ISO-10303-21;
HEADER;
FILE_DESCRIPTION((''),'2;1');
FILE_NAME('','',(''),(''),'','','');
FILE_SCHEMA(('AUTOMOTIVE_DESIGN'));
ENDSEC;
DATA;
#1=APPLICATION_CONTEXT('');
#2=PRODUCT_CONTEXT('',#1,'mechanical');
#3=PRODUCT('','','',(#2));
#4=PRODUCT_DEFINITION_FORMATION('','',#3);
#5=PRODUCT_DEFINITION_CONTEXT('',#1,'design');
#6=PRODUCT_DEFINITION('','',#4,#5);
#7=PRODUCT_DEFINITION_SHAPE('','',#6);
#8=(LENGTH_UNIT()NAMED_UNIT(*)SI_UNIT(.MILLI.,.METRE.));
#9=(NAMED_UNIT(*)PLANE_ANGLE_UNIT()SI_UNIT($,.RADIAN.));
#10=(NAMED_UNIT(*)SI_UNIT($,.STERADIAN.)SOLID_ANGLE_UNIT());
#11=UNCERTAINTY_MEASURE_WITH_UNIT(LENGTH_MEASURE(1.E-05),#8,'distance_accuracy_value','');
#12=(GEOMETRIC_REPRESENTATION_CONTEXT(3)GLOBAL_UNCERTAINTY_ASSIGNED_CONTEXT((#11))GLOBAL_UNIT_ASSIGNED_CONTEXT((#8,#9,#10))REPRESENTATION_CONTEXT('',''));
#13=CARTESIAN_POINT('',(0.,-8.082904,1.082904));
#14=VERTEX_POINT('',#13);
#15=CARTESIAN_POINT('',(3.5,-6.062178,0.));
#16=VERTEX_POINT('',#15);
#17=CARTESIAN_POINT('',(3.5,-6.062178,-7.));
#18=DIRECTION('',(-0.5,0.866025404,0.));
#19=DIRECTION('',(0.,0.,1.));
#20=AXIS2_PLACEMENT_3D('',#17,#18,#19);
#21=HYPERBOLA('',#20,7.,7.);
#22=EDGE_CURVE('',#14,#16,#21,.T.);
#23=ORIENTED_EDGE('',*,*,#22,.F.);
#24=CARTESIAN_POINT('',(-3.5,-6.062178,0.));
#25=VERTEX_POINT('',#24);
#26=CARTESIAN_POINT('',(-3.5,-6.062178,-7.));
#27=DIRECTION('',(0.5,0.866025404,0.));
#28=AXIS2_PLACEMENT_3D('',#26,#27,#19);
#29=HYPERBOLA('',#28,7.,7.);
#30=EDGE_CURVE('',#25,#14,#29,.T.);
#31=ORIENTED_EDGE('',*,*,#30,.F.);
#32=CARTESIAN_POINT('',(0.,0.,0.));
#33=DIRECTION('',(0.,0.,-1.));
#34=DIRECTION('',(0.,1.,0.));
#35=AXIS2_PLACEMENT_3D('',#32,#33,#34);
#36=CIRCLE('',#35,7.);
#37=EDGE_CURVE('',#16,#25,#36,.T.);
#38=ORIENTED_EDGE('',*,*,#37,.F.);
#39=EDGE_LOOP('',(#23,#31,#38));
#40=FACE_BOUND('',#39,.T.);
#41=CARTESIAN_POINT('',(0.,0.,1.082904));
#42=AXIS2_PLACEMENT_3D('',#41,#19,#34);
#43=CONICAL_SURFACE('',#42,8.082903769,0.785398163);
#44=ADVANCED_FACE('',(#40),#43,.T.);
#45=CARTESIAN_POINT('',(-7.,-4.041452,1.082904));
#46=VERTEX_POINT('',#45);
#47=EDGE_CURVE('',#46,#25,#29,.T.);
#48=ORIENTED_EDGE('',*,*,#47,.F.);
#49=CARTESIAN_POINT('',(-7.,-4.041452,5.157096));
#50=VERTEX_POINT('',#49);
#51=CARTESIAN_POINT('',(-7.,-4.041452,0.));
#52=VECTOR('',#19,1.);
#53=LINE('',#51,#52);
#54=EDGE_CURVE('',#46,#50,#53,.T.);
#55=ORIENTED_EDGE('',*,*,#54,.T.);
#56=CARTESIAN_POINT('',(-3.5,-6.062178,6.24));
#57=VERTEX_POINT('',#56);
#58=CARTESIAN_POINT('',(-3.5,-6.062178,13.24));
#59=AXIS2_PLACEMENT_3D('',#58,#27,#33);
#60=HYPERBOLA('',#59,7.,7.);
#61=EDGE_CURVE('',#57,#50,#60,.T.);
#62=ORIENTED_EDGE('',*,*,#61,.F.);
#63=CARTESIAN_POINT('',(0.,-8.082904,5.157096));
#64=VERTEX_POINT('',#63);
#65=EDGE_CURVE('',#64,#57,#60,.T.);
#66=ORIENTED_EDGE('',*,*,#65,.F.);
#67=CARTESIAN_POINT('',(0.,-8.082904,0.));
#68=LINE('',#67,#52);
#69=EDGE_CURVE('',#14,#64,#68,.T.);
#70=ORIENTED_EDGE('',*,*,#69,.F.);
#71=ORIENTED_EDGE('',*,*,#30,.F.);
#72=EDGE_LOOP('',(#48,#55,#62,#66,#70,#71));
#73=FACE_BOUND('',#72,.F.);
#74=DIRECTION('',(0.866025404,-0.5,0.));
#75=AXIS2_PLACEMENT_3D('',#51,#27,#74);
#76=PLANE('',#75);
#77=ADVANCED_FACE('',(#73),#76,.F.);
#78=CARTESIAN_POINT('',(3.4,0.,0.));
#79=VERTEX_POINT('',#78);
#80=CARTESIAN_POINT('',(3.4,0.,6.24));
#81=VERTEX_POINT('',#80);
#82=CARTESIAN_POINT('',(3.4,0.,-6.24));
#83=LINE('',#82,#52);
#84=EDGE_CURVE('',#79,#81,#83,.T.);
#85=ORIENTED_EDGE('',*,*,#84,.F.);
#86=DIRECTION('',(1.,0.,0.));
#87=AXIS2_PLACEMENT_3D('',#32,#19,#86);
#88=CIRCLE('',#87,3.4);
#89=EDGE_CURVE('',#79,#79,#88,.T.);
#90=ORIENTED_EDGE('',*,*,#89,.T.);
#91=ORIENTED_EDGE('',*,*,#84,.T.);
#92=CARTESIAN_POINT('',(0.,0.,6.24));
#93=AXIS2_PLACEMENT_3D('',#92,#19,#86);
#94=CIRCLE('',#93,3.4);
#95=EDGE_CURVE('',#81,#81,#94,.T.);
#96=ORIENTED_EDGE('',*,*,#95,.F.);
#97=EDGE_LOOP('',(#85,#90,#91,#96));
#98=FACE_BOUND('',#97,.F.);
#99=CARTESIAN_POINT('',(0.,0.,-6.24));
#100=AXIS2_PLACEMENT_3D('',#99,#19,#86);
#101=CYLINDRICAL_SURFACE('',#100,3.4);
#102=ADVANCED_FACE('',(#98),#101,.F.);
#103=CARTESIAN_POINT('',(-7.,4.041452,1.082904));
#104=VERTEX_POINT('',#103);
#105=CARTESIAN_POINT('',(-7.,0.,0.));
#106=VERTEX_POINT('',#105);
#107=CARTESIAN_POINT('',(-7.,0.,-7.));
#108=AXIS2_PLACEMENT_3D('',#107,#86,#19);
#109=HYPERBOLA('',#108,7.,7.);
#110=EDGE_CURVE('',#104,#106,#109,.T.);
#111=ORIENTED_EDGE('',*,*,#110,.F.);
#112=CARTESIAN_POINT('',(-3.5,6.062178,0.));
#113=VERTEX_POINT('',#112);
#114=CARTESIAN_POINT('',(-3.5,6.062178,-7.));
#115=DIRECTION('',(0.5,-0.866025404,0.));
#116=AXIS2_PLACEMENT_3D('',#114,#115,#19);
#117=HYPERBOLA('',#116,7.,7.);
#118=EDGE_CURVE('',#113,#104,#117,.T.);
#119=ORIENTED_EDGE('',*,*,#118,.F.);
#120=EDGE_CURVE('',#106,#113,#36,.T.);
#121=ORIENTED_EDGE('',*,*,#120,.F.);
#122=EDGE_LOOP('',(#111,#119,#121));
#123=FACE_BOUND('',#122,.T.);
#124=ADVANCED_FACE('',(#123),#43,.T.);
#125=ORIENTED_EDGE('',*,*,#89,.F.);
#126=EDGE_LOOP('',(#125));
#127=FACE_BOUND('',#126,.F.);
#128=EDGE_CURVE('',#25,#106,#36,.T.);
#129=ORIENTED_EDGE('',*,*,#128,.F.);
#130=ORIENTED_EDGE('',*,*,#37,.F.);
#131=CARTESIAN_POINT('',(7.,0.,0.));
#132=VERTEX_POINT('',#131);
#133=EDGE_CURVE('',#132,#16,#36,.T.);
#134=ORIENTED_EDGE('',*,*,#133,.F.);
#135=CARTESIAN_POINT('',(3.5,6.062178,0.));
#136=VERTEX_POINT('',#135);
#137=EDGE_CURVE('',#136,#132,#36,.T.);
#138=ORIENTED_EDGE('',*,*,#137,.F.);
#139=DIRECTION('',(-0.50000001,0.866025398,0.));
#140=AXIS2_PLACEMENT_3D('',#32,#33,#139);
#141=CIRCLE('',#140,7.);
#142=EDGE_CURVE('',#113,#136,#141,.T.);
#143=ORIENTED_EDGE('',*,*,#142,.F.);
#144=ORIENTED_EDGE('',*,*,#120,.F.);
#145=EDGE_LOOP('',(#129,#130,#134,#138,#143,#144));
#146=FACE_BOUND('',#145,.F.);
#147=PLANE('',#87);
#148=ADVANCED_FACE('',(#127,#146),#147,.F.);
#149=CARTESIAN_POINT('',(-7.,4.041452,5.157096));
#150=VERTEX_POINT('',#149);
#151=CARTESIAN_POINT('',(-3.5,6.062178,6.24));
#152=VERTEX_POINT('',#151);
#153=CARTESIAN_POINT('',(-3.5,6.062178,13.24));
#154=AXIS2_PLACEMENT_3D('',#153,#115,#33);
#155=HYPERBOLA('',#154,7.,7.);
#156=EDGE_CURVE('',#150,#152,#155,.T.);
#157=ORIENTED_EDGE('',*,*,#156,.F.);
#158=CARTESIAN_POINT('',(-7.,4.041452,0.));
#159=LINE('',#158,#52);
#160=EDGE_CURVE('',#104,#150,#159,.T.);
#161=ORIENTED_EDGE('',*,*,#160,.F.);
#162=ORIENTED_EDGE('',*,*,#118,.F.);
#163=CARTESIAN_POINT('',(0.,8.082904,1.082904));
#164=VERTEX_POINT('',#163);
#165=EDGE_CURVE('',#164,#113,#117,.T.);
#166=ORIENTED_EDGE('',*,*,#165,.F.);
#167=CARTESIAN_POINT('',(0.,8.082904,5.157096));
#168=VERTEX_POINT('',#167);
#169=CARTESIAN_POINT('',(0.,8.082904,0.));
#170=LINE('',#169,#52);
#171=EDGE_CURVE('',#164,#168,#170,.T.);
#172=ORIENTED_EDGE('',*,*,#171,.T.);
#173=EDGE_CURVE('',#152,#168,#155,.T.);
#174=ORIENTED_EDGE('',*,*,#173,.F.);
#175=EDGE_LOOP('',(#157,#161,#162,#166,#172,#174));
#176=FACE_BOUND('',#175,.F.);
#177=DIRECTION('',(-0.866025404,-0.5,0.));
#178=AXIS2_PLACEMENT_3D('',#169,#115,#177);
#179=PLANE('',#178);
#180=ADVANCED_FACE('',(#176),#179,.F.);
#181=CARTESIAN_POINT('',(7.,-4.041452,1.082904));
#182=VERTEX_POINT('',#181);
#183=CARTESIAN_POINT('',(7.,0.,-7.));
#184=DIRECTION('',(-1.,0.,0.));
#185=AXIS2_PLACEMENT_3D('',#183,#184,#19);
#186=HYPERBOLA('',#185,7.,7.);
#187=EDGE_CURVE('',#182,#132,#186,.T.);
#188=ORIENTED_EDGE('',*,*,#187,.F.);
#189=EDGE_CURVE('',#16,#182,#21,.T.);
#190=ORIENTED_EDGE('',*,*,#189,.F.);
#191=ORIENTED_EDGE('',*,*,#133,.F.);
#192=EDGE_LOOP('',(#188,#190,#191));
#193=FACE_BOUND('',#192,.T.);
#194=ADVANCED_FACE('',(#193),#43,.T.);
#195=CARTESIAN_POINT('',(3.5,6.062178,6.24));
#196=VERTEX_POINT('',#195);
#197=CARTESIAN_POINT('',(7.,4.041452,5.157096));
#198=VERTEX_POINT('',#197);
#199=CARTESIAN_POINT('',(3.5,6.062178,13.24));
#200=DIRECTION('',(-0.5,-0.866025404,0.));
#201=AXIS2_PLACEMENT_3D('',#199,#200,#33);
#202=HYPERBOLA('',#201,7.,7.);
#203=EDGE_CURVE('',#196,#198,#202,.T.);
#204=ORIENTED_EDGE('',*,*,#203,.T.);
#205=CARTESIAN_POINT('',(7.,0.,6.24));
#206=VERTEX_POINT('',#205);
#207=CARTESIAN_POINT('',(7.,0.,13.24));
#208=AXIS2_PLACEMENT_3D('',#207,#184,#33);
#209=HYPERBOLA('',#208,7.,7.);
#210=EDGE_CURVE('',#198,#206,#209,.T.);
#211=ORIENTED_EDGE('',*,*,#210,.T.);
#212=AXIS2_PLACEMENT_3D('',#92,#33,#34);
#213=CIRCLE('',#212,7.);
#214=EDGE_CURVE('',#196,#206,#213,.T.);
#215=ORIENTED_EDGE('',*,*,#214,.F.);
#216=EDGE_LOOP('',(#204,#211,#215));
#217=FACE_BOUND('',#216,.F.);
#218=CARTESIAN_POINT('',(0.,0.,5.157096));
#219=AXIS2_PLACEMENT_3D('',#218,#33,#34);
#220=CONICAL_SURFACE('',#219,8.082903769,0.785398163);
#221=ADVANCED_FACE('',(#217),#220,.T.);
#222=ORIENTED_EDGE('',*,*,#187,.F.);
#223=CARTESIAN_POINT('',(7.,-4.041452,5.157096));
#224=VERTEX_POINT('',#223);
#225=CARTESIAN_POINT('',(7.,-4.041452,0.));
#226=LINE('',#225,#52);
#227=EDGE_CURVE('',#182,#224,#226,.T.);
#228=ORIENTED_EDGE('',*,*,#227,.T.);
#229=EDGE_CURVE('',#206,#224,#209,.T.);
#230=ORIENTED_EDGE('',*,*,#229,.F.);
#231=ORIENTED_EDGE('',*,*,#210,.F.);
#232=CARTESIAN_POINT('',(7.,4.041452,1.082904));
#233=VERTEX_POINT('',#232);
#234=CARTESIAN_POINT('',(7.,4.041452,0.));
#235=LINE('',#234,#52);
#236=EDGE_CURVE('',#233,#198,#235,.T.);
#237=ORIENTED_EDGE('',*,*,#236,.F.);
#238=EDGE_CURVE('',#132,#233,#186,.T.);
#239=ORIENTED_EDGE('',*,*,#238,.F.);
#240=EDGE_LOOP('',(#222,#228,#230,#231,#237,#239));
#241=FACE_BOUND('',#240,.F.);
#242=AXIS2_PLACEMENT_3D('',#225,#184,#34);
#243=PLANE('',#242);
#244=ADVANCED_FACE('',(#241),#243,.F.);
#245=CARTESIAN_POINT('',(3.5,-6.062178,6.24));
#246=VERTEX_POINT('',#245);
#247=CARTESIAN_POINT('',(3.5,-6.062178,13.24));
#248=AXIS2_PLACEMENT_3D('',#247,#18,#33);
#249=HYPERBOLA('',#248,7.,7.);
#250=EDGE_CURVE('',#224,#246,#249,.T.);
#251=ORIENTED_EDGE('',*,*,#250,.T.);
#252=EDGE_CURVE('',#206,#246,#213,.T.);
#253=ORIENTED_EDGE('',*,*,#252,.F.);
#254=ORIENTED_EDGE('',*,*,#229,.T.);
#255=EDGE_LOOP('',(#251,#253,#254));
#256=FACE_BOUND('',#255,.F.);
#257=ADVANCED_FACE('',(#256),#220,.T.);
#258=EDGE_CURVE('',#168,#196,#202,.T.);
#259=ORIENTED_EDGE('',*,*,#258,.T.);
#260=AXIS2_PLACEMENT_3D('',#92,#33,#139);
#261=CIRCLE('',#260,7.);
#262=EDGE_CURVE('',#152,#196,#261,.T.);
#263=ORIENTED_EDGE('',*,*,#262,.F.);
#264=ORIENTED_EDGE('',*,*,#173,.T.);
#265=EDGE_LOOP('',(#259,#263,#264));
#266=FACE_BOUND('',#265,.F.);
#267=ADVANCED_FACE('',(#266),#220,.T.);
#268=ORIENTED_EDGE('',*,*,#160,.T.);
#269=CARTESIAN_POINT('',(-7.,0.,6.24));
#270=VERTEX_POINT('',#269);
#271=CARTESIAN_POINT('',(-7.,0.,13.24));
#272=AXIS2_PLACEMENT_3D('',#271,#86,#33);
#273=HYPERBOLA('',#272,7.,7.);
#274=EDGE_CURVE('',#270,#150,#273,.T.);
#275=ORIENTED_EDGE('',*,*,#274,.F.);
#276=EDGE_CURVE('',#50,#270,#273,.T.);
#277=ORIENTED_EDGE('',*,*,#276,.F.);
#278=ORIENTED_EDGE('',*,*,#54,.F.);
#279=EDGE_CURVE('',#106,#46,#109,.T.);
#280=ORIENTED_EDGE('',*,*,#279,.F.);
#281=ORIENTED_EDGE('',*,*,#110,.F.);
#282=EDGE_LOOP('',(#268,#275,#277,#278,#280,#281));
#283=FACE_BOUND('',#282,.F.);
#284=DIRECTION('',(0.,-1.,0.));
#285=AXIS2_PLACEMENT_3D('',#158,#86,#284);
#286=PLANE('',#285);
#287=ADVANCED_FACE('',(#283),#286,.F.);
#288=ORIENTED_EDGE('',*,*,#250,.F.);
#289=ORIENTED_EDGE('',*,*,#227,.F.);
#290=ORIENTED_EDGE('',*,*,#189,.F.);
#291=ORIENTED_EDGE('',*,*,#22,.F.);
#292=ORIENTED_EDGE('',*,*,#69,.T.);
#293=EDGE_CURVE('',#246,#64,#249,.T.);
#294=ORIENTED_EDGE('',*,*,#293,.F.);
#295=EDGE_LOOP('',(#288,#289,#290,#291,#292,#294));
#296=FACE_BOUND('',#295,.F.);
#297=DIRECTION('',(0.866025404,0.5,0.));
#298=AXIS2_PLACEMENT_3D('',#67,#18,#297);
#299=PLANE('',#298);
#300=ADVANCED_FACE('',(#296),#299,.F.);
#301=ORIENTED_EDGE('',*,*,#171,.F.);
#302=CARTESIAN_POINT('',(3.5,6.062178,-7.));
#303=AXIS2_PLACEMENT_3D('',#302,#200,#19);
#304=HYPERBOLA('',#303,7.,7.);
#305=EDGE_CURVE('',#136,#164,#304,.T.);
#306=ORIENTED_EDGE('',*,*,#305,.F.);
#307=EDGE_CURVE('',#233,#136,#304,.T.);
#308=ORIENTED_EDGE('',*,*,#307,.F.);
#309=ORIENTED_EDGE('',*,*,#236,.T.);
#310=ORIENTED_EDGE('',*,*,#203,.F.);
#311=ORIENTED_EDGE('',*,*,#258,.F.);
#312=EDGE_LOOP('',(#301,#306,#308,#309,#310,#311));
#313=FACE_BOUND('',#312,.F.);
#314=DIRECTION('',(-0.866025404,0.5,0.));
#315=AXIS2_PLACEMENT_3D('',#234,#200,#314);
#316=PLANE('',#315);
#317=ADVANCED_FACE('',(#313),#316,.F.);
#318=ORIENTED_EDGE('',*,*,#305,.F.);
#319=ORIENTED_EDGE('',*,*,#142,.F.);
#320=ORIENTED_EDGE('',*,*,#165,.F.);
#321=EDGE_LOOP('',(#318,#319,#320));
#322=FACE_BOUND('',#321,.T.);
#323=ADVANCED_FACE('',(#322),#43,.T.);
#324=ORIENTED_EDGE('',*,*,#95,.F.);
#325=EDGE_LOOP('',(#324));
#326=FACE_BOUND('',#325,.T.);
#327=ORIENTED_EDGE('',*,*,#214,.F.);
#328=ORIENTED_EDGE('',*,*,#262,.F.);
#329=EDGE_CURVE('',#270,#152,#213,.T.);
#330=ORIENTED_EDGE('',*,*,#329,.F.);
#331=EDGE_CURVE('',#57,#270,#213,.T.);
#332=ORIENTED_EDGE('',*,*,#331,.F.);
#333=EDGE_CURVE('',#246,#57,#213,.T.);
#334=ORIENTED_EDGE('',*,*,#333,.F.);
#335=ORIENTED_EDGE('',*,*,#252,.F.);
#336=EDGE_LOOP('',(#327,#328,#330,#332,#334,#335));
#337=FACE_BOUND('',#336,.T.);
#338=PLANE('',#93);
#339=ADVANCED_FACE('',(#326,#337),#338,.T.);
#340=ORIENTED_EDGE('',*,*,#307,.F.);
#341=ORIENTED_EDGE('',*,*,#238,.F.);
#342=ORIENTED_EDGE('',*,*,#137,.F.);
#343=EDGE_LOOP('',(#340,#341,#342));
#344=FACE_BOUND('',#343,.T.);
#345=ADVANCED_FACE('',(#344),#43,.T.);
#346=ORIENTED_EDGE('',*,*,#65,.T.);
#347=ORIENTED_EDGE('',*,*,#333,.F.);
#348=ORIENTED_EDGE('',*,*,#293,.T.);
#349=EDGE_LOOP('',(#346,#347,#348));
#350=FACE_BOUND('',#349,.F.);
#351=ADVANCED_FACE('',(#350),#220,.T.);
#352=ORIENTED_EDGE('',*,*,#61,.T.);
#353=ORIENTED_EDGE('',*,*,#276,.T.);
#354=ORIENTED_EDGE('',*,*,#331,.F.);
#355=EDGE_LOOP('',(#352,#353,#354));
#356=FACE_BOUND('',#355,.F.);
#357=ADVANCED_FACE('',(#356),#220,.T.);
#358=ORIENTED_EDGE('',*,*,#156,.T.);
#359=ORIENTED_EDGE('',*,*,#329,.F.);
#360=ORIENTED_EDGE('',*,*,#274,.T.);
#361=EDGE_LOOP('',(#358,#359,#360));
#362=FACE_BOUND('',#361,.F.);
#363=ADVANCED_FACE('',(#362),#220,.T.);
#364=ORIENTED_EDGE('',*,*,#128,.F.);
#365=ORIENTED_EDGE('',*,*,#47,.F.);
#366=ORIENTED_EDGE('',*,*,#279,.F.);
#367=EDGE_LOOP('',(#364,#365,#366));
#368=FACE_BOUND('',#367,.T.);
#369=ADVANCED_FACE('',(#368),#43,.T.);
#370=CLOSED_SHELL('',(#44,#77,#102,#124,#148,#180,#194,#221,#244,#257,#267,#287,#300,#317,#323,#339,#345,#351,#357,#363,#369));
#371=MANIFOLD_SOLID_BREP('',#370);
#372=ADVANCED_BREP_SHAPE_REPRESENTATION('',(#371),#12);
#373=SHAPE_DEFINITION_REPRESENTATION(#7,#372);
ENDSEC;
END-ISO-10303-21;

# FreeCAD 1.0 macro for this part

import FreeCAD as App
import Part
import Sketcher
from FreeCAD import Vector
Q = App.Units.Quantity

doc = App.newDocument("Part")
body = doc.addObject("PartDesign::Body", "Body")

sketch1 = doc.addObject("Sketcher::SketchObject", "Sketch")
body.addObject(sketch1)
sketch1.AttachmentSupport = (doc.XY_Plane, [""])
sketch1.MapMode = "FlatFace"
sketch1.addGeometry(Part.LineSegment(Vector(7, -4.041452, 0), Vector(7, 4.041452, 0)), False)
sketch1.addGeometry(Part.LineSegment(Vector(7, 4.041452, 0), Vector(0, 8.082904, 0)), False)
sketch1.addGeometry(Part.LineSegment(Vector(0, 8.082904, 0), Vector(-7, 4.041452, 0)), False)
sketch1.addGeometry(Part.LineSegment(Vector(-7, 4.041452, 0), Vector(-7, -4.041452, 0)), False)
sketch1.addGeometry(Part.LineSegment(Vector(-7, -4.041452, 0), Vector(0, -8.082904, 0)), False)
sketch1.addGeometry(Part.LineSegment(Vector(0, -8.082904, 0), Vector(7, -4.041452, 0)), False)
sketch1.addConstraint(Sketcher.Constraint("Coincident", 0, 2, 1, 1))
sketch1.addConstraint(Sketcher.Constraint("Coincident", 1, 2, 2, 1))
sketch1.addConstraint(Sketcher.Constraint("Coincident", 2, 2, 3, 1))
sketch1.addConstraint(Sketcher.Constraint("Coincident", 3, 2, 4, 1))
sketch1.addConstraint(Sketcher.Constraint("Coincident", 4, 2, 5, 1))
sketch1.addConstraint(Sketcher.Constraint("Coincident", 5, 2, 0, 1))
sketch1.addConstraint(Sketcher.Constraint("Vertical", 0))
sketch1.addConstraint(Sketcher.Constraint("Vertical", 3))
sketch1.addConstraint(Sketcher.Constraint("Symmetric", 0, 2, 3, 2, -1, 1))
sketch1.addConstraint(Sketcher.Constraint("Symmetric", 1, 2, 4, 2, -1, 1))
sketch1.addConstraint(Sketcher.Constraint("PointOnObject", 1, 2, -2))
sketch1.addConstraint(Sketcher.Constraint("Parallel", 2, 5))
sketch1.addConstraint(Sketcher.Constraint("Horizontal", 0, 2, 2, 2))
sketch1.addConstraint(Sketcher.Constraint("Angle", 1, Q("150 deg")))
sketch1.addConstraint(Sketcher.Constraint("DistanceX", -1, 1, 0, 2, Q("7 mm")))
sketch1.addConstraint(Sketcher.Constraint("DistanceY", 0, 1, 0, 2, Q("8.082904 mm")))
pad1 = doc.addObject("PartDesign::Pad", "Pad")
body.addObject(pad1)
pad1.Profile = sketch1
pad1.Length = 6.24

sketch2 = doc.addObject("Sketcher::SketchObject", "Sketch001")
body.addObject(sketch2)
sketch2.AttachmentSupport = (doc.XY_Plane, [""])
sketch2.MapMode = "FlatFace"
sketch2.addGeometry(Part.Circle(Vector(0, 0, 0), Vector(0, 0, 1), 3.4), False)
sketch2.addConstraint(Sketcher.Constraint("Coincident", 0, 3, -1, 1))
sketch2.addConstraint(Sketcher.Constraint("Diameter", 0, Q("6.8 mm")))
doc.recompute()
hole = doc.addObject("PartDesign::Hole", "Hole")
body.addObject(hole)
hole.Profile = sketch2
hole.ThreadType = "None"
hole.Diameter = 6.8
hole.DepthType = "Dimension"
hole.Depth = 6.24
hole.DrillPoint = "Flat"
hole.Reversed = True

sketch3 = doc.addObject("Sketcher::SketchObject", "Sketch002")
body.addObject(sketch3)
sketch3.AttachmentSupport = (doc.YZ_Plane, [""])
sketch3.MapMode = "FlatFace"
sketch3.addGeometry(Part.LineSegment(Vector(8.082904, 0, 0), Vector(8.082904, 1.082904, 0)), False)
sketch3.addGeometry(Part.LineSegment(Vector(8.082904, 1.082904, 0), Vector(7, 0, 0)), False)
sketch3.addGeometry(Part.LineSegment(Vector(7, 0, 0), Vector(8.082904, 0, 0)), False)
sketch3.addGeometry(Part.LineSegment(Vector(8.082904, 6.24, 0), Vector(7, 6.24, 0)), False)
sketch3.addGeometry(Part.LineSegment(Vector(7, 6.24, 0), Vector(8.082904, 5.157096, 0)), False)
sketch3.addGeometry(Part.LineSegment(Vector(8.082904, 5.157096, 0), Vector(8.082904, 6.24, 0)), False)
sketch3.addConstraint(Sketcher.Constraint("Coincident", 0, 2, 1, 1))
sketch3.addConstraint(Sketcher.Constraint("Coincident", 1, 2, 2, 1))
sketch3.addConstraint(Sketcher.Constraint("Coincident", 2, 2, 0, 1))
sketch3.addConstraint(Sketcher.Constraint("Coincident", 3, 2, 4, 1))
sketch3.addConstraint(Sketcher.Constraint("Coincident", 4, 2, 5, 1))
sketch3.addConstraint(Sketcher.Constraint("Coincident", 5, 2, 3, 1))
sketch3.addConstraint(Sketcher.Constraint("Vertical", 0))
sketch3.addConstraint(Sketcher.Constraint("Horizontal", 2))
sketch3.addConstraint(Sketcher.Constraint("Horizontal", 3))
sketch3.addConstraint(Sketcher.Constraint("Vertical", 5))
sketch3.addConstraint(Sketcher.Constraint("PointOnObject", 1, 2, -1))
sketch3.addConstraint(Sketcher.Constraint("Perpendicular", 1, 4))
sketch3.addConstraint(Sketcher.Constraint("Vertical", 1, 2, 3, 2))
sketch3.addConstraint(Sketcher.Constraint("Vertical", 2, 2, 4, 2))
sketch3.addConstraint(Sketcher.Constraint("Equal", 3, 0))
sketch3.addConstraint(Sketcher.Constraint("DistanceX", -1, 1, 1, 2, Q("7 mm")))
sketch3.addConstraint(Sketcher.Constraint("DistanceY", -1, 1, 3, 2, Q("6.24 mm")))
sketch3.addConstraint(Sketcher.Constraint("DistanceX", 2, 1, 2, 2, Q("1.082904 mm")))
groove = doc.addObject("PartDesign::Groove", "Groove")
body.addObject(groove)
groove.Profile = sketch3
groove.ReferenceAxis = (sketch3, ["V_Axis"])
groove.Angle = 360

doc.recompute()
